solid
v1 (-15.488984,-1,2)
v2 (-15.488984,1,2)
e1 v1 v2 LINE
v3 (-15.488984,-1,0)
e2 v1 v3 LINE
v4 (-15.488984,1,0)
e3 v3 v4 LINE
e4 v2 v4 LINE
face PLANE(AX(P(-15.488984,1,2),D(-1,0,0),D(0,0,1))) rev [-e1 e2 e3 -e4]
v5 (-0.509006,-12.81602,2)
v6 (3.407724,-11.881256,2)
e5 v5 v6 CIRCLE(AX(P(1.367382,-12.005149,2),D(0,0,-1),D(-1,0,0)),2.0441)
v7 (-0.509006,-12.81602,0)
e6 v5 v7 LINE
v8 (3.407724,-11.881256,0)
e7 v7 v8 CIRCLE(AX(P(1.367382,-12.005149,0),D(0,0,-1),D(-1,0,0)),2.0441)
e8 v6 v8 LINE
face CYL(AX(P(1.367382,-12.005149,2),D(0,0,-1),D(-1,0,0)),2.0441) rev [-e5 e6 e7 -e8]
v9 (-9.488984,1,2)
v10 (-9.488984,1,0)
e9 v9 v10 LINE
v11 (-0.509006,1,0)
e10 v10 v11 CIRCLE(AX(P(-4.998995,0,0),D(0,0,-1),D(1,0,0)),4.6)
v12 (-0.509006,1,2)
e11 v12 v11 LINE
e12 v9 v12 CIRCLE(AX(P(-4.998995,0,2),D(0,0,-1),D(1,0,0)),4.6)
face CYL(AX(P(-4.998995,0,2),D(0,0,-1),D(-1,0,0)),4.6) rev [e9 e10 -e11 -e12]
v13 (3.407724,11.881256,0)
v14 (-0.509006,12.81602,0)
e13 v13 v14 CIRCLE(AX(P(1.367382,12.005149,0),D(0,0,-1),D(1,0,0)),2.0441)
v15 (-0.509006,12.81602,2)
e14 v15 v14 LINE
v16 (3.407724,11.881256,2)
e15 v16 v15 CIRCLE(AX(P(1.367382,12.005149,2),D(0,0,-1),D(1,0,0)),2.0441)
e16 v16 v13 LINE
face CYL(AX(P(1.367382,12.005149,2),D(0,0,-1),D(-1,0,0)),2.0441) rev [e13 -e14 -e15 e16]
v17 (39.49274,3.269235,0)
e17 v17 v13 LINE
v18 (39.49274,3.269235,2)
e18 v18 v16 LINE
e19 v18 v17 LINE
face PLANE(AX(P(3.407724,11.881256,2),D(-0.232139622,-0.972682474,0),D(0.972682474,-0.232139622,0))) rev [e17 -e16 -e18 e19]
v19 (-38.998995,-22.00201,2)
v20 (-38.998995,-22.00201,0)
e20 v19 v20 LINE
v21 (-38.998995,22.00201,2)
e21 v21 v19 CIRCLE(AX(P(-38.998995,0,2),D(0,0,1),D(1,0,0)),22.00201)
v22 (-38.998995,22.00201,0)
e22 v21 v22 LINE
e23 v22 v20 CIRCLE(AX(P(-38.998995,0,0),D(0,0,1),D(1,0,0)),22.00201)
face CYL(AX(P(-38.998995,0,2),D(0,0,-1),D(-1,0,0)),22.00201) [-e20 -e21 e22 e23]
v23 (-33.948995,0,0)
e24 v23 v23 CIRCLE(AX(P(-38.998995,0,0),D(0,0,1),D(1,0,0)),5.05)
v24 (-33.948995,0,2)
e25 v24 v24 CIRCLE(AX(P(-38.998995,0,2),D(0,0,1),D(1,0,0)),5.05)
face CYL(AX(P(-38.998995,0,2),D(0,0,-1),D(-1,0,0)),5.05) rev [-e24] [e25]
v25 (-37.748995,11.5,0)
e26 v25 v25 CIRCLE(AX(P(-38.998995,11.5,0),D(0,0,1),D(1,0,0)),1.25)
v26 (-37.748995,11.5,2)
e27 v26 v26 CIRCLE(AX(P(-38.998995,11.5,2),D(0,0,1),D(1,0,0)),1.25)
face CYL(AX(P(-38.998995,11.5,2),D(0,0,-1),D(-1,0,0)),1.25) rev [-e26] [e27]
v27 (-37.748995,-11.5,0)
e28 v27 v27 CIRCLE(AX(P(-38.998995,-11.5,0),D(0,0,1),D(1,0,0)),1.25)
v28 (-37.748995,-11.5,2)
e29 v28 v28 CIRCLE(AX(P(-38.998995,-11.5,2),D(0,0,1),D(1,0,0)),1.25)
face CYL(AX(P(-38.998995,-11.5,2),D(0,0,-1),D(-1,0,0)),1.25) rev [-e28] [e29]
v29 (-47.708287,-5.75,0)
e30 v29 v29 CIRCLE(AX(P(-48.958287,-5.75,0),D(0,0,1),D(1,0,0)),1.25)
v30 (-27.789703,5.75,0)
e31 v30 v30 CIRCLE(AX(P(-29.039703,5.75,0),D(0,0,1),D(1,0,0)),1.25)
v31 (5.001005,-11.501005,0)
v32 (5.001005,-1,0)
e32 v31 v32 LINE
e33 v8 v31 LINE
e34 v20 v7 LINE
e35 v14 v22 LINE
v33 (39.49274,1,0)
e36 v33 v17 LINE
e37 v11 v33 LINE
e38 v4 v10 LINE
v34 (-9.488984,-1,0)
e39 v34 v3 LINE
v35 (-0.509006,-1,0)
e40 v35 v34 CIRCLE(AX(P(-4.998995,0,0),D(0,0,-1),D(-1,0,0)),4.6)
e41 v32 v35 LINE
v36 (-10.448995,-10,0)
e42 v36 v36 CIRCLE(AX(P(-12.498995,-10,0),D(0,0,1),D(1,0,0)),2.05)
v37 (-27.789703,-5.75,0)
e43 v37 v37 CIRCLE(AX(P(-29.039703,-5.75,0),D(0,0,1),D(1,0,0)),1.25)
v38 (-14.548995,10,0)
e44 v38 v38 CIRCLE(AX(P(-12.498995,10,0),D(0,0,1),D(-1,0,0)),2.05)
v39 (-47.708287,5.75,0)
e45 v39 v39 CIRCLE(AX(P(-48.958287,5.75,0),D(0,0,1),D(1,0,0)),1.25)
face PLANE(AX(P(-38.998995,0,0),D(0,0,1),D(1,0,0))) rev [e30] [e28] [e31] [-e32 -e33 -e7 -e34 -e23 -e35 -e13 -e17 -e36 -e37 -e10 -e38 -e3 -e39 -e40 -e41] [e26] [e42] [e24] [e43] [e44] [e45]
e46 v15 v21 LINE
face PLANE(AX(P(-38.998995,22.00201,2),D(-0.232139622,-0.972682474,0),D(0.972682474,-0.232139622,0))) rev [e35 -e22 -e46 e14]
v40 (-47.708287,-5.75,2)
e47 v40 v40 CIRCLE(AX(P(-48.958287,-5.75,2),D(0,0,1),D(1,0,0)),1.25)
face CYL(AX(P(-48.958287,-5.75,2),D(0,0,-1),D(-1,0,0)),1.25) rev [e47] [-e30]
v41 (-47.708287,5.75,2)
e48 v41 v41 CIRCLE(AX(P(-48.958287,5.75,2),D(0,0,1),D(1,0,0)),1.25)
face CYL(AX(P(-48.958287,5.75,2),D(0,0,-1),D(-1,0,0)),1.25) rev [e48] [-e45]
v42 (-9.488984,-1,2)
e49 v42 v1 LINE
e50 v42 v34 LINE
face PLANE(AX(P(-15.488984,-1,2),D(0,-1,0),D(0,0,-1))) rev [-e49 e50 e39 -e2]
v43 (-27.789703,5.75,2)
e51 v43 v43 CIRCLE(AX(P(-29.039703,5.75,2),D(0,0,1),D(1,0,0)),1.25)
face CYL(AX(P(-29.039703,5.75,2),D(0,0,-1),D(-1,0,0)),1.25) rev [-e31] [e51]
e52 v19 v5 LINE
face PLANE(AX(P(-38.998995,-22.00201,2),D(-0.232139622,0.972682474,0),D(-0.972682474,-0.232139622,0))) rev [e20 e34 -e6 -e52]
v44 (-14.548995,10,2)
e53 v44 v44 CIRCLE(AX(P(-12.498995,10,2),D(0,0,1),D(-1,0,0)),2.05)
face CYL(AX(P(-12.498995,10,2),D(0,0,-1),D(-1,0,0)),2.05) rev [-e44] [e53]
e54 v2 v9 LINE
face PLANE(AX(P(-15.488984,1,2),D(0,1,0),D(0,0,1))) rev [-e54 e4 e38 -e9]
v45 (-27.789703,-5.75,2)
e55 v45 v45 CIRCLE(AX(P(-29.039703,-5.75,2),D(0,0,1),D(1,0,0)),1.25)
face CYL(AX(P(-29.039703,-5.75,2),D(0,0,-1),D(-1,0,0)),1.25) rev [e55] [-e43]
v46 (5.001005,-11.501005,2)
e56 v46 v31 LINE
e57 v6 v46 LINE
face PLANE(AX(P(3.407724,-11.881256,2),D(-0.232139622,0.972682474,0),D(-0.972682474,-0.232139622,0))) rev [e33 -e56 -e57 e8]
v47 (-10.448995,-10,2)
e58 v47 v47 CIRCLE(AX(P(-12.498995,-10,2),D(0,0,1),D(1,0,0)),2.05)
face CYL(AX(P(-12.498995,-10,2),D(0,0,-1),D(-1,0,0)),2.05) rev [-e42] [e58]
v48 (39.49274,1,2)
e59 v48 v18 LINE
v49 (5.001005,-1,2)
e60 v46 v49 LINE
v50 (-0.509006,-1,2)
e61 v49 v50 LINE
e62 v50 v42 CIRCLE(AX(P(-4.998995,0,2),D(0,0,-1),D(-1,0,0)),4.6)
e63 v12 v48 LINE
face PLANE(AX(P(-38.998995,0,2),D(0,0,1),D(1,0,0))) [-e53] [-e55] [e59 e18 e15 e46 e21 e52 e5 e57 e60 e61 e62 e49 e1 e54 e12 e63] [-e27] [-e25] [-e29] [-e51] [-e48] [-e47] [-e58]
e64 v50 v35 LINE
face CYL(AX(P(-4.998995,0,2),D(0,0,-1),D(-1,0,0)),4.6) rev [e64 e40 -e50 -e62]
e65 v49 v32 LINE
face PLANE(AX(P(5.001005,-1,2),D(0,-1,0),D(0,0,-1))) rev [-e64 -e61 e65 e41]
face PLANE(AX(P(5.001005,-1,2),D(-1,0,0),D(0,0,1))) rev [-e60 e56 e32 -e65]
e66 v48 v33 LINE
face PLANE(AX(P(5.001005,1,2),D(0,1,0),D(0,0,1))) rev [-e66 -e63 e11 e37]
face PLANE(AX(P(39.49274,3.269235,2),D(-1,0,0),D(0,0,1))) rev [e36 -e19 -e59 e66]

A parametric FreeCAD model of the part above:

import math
import FreeCAD as App
import Part
import Sketcher

V = App.Vector
Q = App.Units.Quantity

doc = App.newDocument("Part")
body = doc.addObject("PartDesign::Body", "Body")

# Sketch on XY plane
sketch1 = body.newObject("Sketcher::SketchObject", "Sketch")
sketch1.AttachmentSupport = (doc.getObject("XY_Plane"), [""])
sketch1.MapMode = "FlatFace"
sketch1.addGeometry(Part.LineSegment(V(-15.5, 1, 0), V(-9.5, 1, 0)), False)
sketch1.addGeometry(Part.ArcOfCircle(Part.Circle(V(-5, 0, 0), V(0, 0, 1), 4.6), math.radians(13), math.radians(167)), False)
sketch1.addGeometry(Part.LineSegment(V(-0.5, 1, 0), V(39.5, 1, 0)), False)
sketch1.addGeometry(Part.LineSegment(V(39.5, 1, 0), V(39.5, 3.3, 0)), False)
sketch1.addGeometry(Part.LineSegment(V(39.5, 3.3, 0), V(5, 11.5, 0)), False)
sketch1.addGeometry(Part.LineSegment(V(5, 11.5, 0), V(3.4, 11.9, 0)), False)
sketch1.addGeometry(Part.ArcOfCircle(Part.Circle(V(1.4, 12, 0), V(0, 0, 1), 2), math.radians(157), math.radians(357)), False)
sketch1.addGeometry(Part.LineSegment(V(-0.5, 12.8, 0), V(-39, 22, 0)), False)
sketch1.addGeometry(Part.ArcOfCircle(Part.Circle(V(-39, 0, 0), V(0, 0, 1), 22), math.radians(90), math.radians(270)), False)
sketch1.addGeometry(Part.LineSegment(V(-39, -22, 0), V(-0.5, -12.8, 0)), False)
sketch1.addGeometry(Part.ArcOfCircle(Part.Circle(V(1.4, -12, 0), V(0, 0, 1), 2), math.radians(3), math.radians(203)), False)
sketch1.addGeometry(Part.LineSegment(V(3.4, -11.9, 0), V(5, -11.5, 0)), False)
sketch1.addGeometry(Part.LineSegment(V(5, -11.5, 0), V(5, -1, 0)), False)
sketch1.addGeometry(Part.LineSegment(V(5, -1, 0), V(-0.5, -1, 0)), False)
sketch1.addGeometry(Part.ArcOfCircle(Part.Circle(V(-5, 0, 0), V(0, 0, 1), 4.6), math.radians(-167), math.radians(-13)), False)
sketch1.addGeometry(Part.LineSegment(V(-9.5, -1, 0), V(-15.5, -1, 0)), False)
sketch1.addGeometry(Part.LineSegment(V(-15.5, -1, 0), V(-15.5, 1, 0)), False)
sketch1.addGeometry(Part.Circle(V(-39, -11.5, 0), V(0, 0, 1), 1.2), False)
sketch1.addGeometry(Part.Circle(V(-49, -5.8, 0), V(0, 0, 1), 1.2), False)
sketch1.addGeometry(Part.Circle(V(-12.5, -10, 0), V(0, 0, 1), 2), False)
sketch1.addGeometry(Part.Circle(V(-29, -5.8, 0), V(0, 0, 1), 1.2), False)
sketch1.addGeometry(Part.Circle(V(-49, 5.8, 0), V(0, 0, 1), 1.2), False)
sketch1.addGeometry(Part.Circle(V(-39, 0, 0), V(0, 0, 1), 5), False)
sketch1.addGeometry(Part.Circle(V(-39, 11.5, 0), V(0, 0, 1), 1.2), False)
sketch1.addGeometry(Part.Circle(V(-29, 5.8, 0), V(0, 0, 1), 1.2), False)
sketch1.addGeometry(Part.Circle(V(-12.5, 10, 0), V(0, 0, 1), 2), False)
sketch1.addConstraint(Sketcher.Constraint("Coincident", 0, 2, 1, 2))
sketch1.addConstraint(Sketcher.Constraint("Coincident", 1, 1, 2, 1))
sketch1.addConstraint(Sketcher.Constraint("Coincident", 2, 2, 3, 1))
sketch1.addConstraint(Sketcher.Constraint("Coincident", 3, 2, 4, 1))
sketch1.addConstraint(Sketcher.Constraint("Coincident", 4, 2, 5, 1))
sketch1.addConstraint(Sketcher.Constraint("Coincident", 5, 2, 6, 2))
sketch1.addConstraint(Sketcher.Constraint("Coincident", 6, 1, 7, 1))
sketch1.addConstraint(Sketcher.Constraint("Coincident", 7, 2, 8, 1))
sketch1.addConstraint(Sketcher.Constraint("Coincident", 8, 2, 9, 1))
sketch1.addConstraint(Sketcher.Constraint("Coincident", 9, 2, 10, 2))
sketch1.addConstraint(Sketcher.Constraint("Coincident", 10, 1, 11, 1))
sketch1.addConstraint(Sketcher.Constraint("Coincident", 11, 2, 12, 1))
sketch1.addConstraint(Sketcher.Constraint("Coincident", 12, 2, 13, 1))
sketch1.addConstraint(Sketcher.Constraint("Coincident", 13, 2, 14, 2))
sketch1.addConstraint(Sketcher.Constraint("Coincident", 14, 1, 15, 1))
sketch1.addConstraint(Sketcher.Constraint("Coincident", 15, 2, 16, 1))
sketch1.addConstraint(Sketcher.Constraint("Coincident", 16, 2, 0, 1))
sketch1.addConstraint(Sketcher.Constraint("Horizontal", 0))
sketch1.addConstraint(Sketcher.Constraint("Horizontal", 2))
sketch1.addConstraint(Sketcher.Constraint("Vertical", 3))
sketch1.addConstraint(Sketcher.Constraint("Vertical", 12))
sketch1.addConstraint(Sketcher.Constraint("Horizontal", 13))
sketch1.addConstraint(Sketcher.Constraint("Horizontal", 15))
sketch1.addConstraint(Sketcher.Constraint("Vertical", 16))
sketch1.addConstraint(Sketcher.Constraint("Coincident", 14, 3, 1, 3))
sketch1.addConstraint(Sketcher.Constraint("Coincident", 22, 3, 8, 3))
sketch1.addConstraint(Sketcher.Constraint("Equal", 6, 10))
sketch1.addConstraint(Sketcher.Constraint("Equal", 1, 14))
sketch1.addConstraint(Sketcher.Constraint("Equal", 17, 18))
sketch1.addConstraint(Sketcher.Constraint("Equal", 18, 20))
sketch1.addConstraint(Sketcher.Constraint("Equal", 20, 21))
sketch1.addConstraint(Sketcher.Constraint("Equal", 21, 23))
sketch1.addConstraint(Sketcher.Constraint("Equal", 23, 24))
sketch1.addConstraint(Sketcher.Constraint("Equal", 19, 25))
sketch1.addConstraint(Sketcher.Constraint("Symmetric", 6, 3, 10, 3, -1))
sketch1.addConstraint(Sketcher.Constraint("Symmetric", 18, 3, 21, 3, -1))
sketch1.addConstraint(Sketcher.Constraint("Symmetric", 17, 3, 23, 3, -1))
sketch1.addConstraint(Sketcher.Constraint("Symmetric", 20, 3, 24, 3, -1))
sketch1.addConstraint(Sketcher.Constraint("Symmetric", 19, 3, 25, 3, -1))
sketch1.addConstraint(Sketcher.Constraint("Symmetric", 7, 2, 8, 2, -1))
sketch1.addConstraint(Sketcher.Constraint("Symmetric", 4, 2, 11, 2, -1))
sketch1.addConstraint(Sketcher.Constraint("Symmetric", 1, 1, 13, 2, -1))
sketch1.addConstraint(Sketcher.Constraint("Parallel", 4, 5))
sketch1.addConstraint(Sketcher.Constraint("Parallel", 5, 7))
sketch1.addConstraint(Sketcher.Constraint("Parallel", 9, 11))
sketch1.addConstraint(Sketcher.Constraint("Horizontal", 18, 3, 20, 3))
sketch1.addConstraint(Sketcher.Constraint("Horizontal", 0, 2, 1, 1))
sketch1.addConstraint(Sketcher.Constraint("Horizontal", 13, 2, 14, 1))
sketch1.addConstraint(Sketcher.Constraint("Vertical", 8, 3, 17, 3))
sketch1.addConstraint(Sketcher.Constraint("Vertical", 1, 1, 6, 1))
sketch1.addConstraint(Sketcher.Constraint("Vertical", 23, 3, 7, 2))
sketch1.addConstraint(Sketcher.Constraint("Vertical", 6, 1, 9, 2))
sketch1.addConstraint(Sketcher.Constraint("Diameter", 17, Q("2.5 mm")))
sketch1.addConstraint(Sketcher.Constraint("Diameter", 19, Q("4.1 mm")))
sketch1.addConstraint(Sketcher.Constraint("Diameter", 22, Q("10.1 mm")))
sketch1.addConstraint(Sketcher.Constraint("Radius", 1, Q("4.6 mm")))
sketch1.addConstraint(Sketcher.Constraint("DistanceX", 0, 1, 0, 2, Q("6 mm")))
sketch1.addConstraint(Sketcher.Constraint("DistanceY", 16, 1, 16, 2, Q("2 mm")))
sketch1.addConstraint(Sketcher.Constraint("DistanceY", 19, 3, -1, 1, Q("10 mm")))
sketch1.addConstraint(Sketcher.Constraint("DistanceX", 8, 3, 1, 3, Q("34 mm")))
sketch1.addConstraint(Sketcher.Constraint("DistanceX", 1, 3, 4, 2, Q("10 mm")))
sketch1.addConstraint(Sketcher.Constraint("DistanceY", 17, 3, -1, 1, Q("11.5 mm")))
sketch1.addConstraint(Sketcher.Constraint("Radius", 6, Q("2.0441 mm")))
sketch1.addConstraint(Sketcher.Constraint("DistanceX", 19, 3, 1, 3, Q("7.5 mm")))
sketch1.addConstraint(Sketcher.Constraint("DistanceY", 18, 3, 21, 3, Q("11.5 mm")))
sketch1.addConstraint(Sketcher.Constraint("Radius", 8, Q("22.00201 mm")))
sketch1.addConstraint(Sketcher.Constraint("Distance", 5, Q("1.638028 mm")))
sketch1.addConstraint(Sketcher.Constraint("Distance", 7, Q("39.57097 mm")))
sketch1.addConstraint(Sketcher.Constraint("DistanceX", 2, 1, 2, 2, Q("40.001746 mm")))
sketch1.addConstraint(Sketcher.Constraint("DistanceY", 3, 1, 3, 2, Q("2.269235 mm")))
sketch1.addConstraint(Sketcher.Constraint("DistanceX", -1, 1, 6, 3, Q("1.367382 mm")))
sketch1.addConstraint(Sketcher.Constraint("DistanceX", 18, 3, 10, 3, Q("50.325669 mm")))
sketch1.addConstraint(Sketcher.Constraint("DistanceX", 20, 3, -1, 1, Q("29.039703 mm")))
pad1 = body.newObject("PartDesign::Pad", "Pad")
pad1.Profile = sketch1
pad1.Length = 2

doc.recompute()
